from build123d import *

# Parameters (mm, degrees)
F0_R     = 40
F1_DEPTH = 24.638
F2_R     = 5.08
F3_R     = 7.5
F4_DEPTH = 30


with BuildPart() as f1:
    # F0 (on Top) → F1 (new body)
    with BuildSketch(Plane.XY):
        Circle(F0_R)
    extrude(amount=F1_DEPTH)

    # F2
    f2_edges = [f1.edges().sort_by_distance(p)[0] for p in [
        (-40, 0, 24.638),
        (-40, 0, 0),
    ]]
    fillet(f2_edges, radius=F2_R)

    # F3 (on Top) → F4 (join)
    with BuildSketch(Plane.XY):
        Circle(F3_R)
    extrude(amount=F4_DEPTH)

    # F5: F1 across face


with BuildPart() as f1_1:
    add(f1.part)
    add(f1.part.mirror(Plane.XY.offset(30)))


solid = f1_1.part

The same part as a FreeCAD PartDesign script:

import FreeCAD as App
import Part
import Sketcher
from FreeCAD import Vector


def edges_at(feature, points):
    """Names of the edges that pass closest to the given points."""
    edges = feature.Shape.Edges
    near = lambda p: min(range(len(edges)), key=lambda i: edges[i].distToShape(Part.Vertex(*p))[0])
    return sorted({f"Edge{near(p) + 1}" for p in points})

doc = App.newDocument("Part")
body = doc.addObject("PartDesign::Body", "Body")

sketch1 = body.newObject("Sketcher::SketchObject", "Sketch")
sketch1.AttachmentSupport = (doc.getObject("XY_Plane"), [""])
sketch1.MapMode = "FlatFace"
sketch1.addGeometry(Part.Circle(Vector(0, 0, 0), Vector(0, 0, 1), 40), False)
sketch1.addConstraint([
    Sketcher.Constraint("Coincident", 0, 3, -1, 1),
    Sketcher.Constraint("Diameter", 0, 80.0),
])
pad1 = body.newObject("PartDesign::Pad", "Pad")
pad1.Profile = sketch1
pad1.Length = 24.638
doc.recompute()

fillet = body.newObject("PartDesign::Fillet", "Fillet")
fillet.Base = (pad1, edges_at(pad1, [(-40, 0, 24.638), (-40, 0, 0)]))
fillet.Radius = 5.08

sketch2 = body.newObject("Sketcher::SketchObject", "Sketch001")
sketch2.AttachmentSupport = (doc.getObject("XY_Plane"), [""])
sketch2.MapMode = "FlatFace"
sketch2.addGeometry(Part.Circle(Vector(0, 0, 0), Vector(0, 0, 1), 8), False)
sketch2.addConstraint([
    Sketcher.Constraint("Coincident", 0, 3, -1, 1),
    Sketcher.Constraint("Diameter", 0, 15.0),
])
pad2 = body.newObject("PartDesign::Pad", "Pad001")
pad2.Profile = sketch2
pad2.Length = 30
body2 = doc.addObject("PartDesign::Body", "Body001")
doc.recompute()

body2.BaseFeature = body
doc.recompute()

mirroring = doc.addObject("Part::Mirroring", "Mirroring")
mirroring.Source = body
mirroring.Base = Vector(0, 0, 30)
mirroring.Normal = Vector(0, 0, 1)
body3 = doc.addObject("PartDesign::Body", "Body002")
body3.BaseFeature = mirroring
boolean = body2.newObject("PartDesign::Boolean", "Boolean")
boolean.Type = "Fuse"
boolean.addObjects([body3])
doc.recompute()
mirroring.Visibility = False

doc.recompute()
